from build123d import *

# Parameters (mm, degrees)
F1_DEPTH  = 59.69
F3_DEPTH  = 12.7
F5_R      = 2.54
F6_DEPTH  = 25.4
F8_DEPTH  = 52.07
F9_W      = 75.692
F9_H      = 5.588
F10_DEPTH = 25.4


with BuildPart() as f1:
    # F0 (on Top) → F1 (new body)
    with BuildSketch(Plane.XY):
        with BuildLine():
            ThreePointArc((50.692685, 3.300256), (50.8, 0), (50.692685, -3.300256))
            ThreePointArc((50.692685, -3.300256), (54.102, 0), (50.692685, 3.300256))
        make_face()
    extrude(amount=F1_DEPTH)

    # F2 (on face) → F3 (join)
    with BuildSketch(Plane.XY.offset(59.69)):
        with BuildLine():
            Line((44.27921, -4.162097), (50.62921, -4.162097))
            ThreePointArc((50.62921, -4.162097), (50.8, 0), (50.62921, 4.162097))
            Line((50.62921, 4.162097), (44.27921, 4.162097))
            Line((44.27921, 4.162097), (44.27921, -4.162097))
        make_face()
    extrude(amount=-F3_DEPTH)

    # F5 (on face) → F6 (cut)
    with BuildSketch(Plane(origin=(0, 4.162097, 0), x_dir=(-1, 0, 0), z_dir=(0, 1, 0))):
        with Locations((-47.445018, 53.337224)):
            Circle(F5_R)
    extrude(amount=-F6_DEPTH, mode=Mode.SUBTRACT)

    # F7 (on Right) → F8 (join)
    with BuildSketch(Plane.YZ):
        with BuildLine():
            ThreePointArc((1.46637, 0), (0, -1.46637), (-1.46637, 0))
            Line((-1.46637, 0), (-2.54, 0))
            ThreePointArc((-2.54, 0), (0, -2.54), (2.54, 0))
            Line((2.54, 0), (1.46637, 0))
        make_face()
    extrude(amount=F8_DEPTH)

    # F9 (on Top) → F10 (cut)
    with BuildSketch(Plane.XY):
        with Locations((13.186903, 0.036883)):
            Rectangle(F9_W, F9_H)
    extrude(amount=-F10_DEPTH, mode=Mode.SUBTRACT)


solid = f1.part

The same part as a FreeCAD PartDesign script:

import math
import FreeCAD as App
import Part
import Sketcher
Q = App.Units.Quantity


def add_polygon(sketch, points):
    """Adds a closed chain of lines whose ends are joined by coincident constraints."""
    first, n = sketch.GeometryCount, len(points)
    for a, b in zip(points, points[1:] + points[:1]):
        sketch.addGeometry(Part.LineSegment(App.Vector(*a, 0), App.Vector(*b, 0)), False)
    for i in range(n):
        sketch.addConstraint(Sketcher.Constraint("Coincident", first + i, 2, first + (i + 1) % n, 1))

doc = App.newDocument("Part")
body = doc.addObject("PartDesign::Body", "Body")

sketch1 = body.newObject("Sketcher::SketchObject", "Sketch")
sketch1.AttachmentSupport = (doc.getObject("XY_Plane"), [""])
sketch1.MapMode = "FlatFace"
sketch1.addGeometry([
    Part.ArcOfCircle(Part.Circle(App.Vector(0, 0, 0), App.Vector(0, 0, 1), 50.8), math.radians(-3.72), math.radians(3.72)),
    Part.ArcOfCircle(Part.Circle(App.Vector(50.8, 0, 0), App.Vector(0, 0, 1), 3.3), math.radians(-92), math.radians(92)),
], False)
sketch1.addConstraint([
    Sketcher.Constraint("Coincident", 0, 1, 1, 1),
    Sketcher.Constraint("Coincident", 1, 2, 0, 2),
    Sketcher.Constraint("Symmetric", 0, 1, 1, 2, -1),
    Sketcher.Constraint("Radius", 1, Q("0.13 in")),
    Sketcher.Constraint("DistanceX", -1, 1, 1, 3, Q("2 in")),
    Sketcher.Constraint("Radius", 0, 50.80001),
    Sketcher.Constraint("DistanceX", 0, 3, 1, 3, 50.80001),
])
pad1 = body.newObject("PartDesign::Pad", "Pad")
pad1.Profile = sketch1
pad1.Length = Q("2.35 in")

sketch2 = body.newObject("Sketcher::SketchObject", "Sketch001")
sketch2.AttachmentSupport = (doc.getObject("XY_Plane"), [""])
sketch2.MapMode = "FlatFace"
sketch2.AttachmentOffset = App.Placement(App.Vector(0, 0, 2.35 * 25.4), App.Rotation())
sketch2.addGeometry([
    Part.LineSegment(App.Vector(44, -4, 0), App.Vector(51, -4, 0)),
    Part.ArcOfCircle(Part.Circle(App.Vector(0, 0, 0), App.Vector(0, 0, 1), 51), math.radians(-4.7), math.radians(4.7)),
    Part.LineSegment(App.Vector(51, 4, 0), App.Vector(44, 4, 0)),
    Part.LineSegment(App.Vector(44, 4, 0), App.Vector(44, -4, 0)),
], False)
sketch2.addConstraint([
    Sketcher.Constraint("Coincident", 0, 2, 1, 1),
    Sketcher.Constraint("Coincident", 1, 2, 2, 1),
    Sketcher.Constraint("Coincident", 2, 2, 3, 1),
    Sketcher.Constraint("Coincident", 3, 2, 0, 1),
    Sketcher.Constraint("Horizontal", 0),
    Sketcher.Constraint("Horizontal", 2),
    Sketcher.Constraint("Vertical", 3),
    Sketcher.Constraint("Symmetric", 0, 2, 1, 2, -1),
    Sketcher.Constraint("DistanceX", 0, 1, 0, 2, Q("0.25 in")),
    Sketcher.Constraint("Radius", 1, 50.799873),
    Sketcher.Constraint("DistanceY", 3, 2, 3, 1, 8.324194),
    Sketcher.Constraint("DistanceX", -1, 1, 0, 2, 50.62921),
])
pad2 = body.newObject("PartDesign::Pad", "Pad001")
pad2.Profile = sketch2
pad2.Length = Q("0.5 in")
pad2.Reversed = True

sketch3 = body.newObject("Sketcher::SketchObject", "Sketch002")
sketch3.AttachmentSupport = (doc.getObject("XZ_Plane"), [""])
sketch3.MapMode = "FlatFace"
sketch3.AttachmentOffset = App.Placement(App.Vector(0, 0, -4.162097), App.Rotation())
sketch3.addGeometry(Part.Circle(App.Vector(47.4, 53.3, 0), App.Vector(0, 0, 1), 2.5), False)
sketch3.addConstraint([
    Sketcher.Constraint("Diameter", 0, Q("0.2 in")),
    Sketcher.Constraint("DistanceX", -1, 1, 0, 3, 47.445018),
    Sketcher.Constraint("DistanceY", -1, 1, 0, 3, 53.337224),
])
pocket1 = body.newObject("PartDesign::Pocket", "Pocket")
pocket1.Profile = sketch3
pocket1.Length = Q("1 in")
pocket1.Reversed = True

sketch4 = body.newObject("Sketcher::SketchObject", "Sketch003")
sketch4.AttachmentSupport = (doc.getObject("YZ_Plane"), [""])
sketch4.MapMode = "FlatFace"
sketch4.addGeometry([
    Part.ArcOfCircle(Part.Circle(App.Vector(0, 0, 0), App.Vector(0, 0, 1), 1.5), math.radians(180), math.radians(360)),
    Part.LineSegment(App.Vector(-1.5, 0, 0), App.Vector(-2.5, 0, 0)),
    Part.ArcOfCircle(Part.Circle(App.Vector(0, 0, 0), App.Vector(0, 0, 1), 2.5), math.radians(180), math.radians(360)),
    Part.LineSegment(App.Vector(2.5, 0, 0), App.Vector(1.5, 0, 0)),
], False)
sketch4.addConstraint([
    Sketcher.Constraint("Coincident", 0, 1, 1, 1),
    Sketcher.Constraint("Coincident", 1, 2, 2, 1),
    Sketcher.Constraint("Coincident", 2, 2, 3, 1),
    Sketcher.Constraint("Coincident", 3, 2, 0, 2),
    Sketcher.Constraint("Horizontal", 1),
    Sketcher.Constraint("Horizontal", 3),
    Sketcher.Constraint("Coincident", 0, 3, -1, 1),
    Sketcher.Constraint("Coincident", 2, 3, -1, 1),
    Sketcher.Constraint("PointOnObject", 0, 1, -1),
    Sketcher.Constraint("PointOnObject", 2, 2, -1),
    Sketcher.Constraint("Radius", 2, Q("0.1 in")),
    Sketcher.Constraint("Radius", 0, 1.46637),
])
pad3 = body.newObject("PartDesign::Pad", "Pad002")
pad3.Profile = sketch4
pad3.Length = Q("2.05 in")

sketch5 = body.newObject("Sketcher::SketchObject", "Sketch004")
sketch5.AttachmentSupport = (doc.getObject("XY_Plane"), [""])
sketch5.MapMode = "FlatFace"
add_polygon(sketch5, [(-25, 3), (-25, -3), (51, -3), (51, 3)])
sketch5.addConstraint([
    Sketcher.Constraint("Vertical", 0),
    Sketcher.Constraint("Horizontal", 1),
    Sketcher.Constraint("Vertical", 2),
    Sketcher.Constraint("Horizontal", 3),
    Sketcher.Constraint("DistanceX", 1, 1, 1, 2, Q("2.98 in")),
    Sketcher.Constraint("DistanceY", 0, 2, 0, 1, Q("0.22 in")),
    Sketcher.Constraint("DistanceX", 0, 2, -1, 1, 24.659097),
    Sketcher.Constraint("DistanceY", 0, 2, -1, 1, 2.757117),
])
pocket2 = body.newObject("PartDesign::Pocket", "Pocket001")
pocket2.Profile = sketch5
pocket2.Length = Q("1 in")

doc.recompute()
